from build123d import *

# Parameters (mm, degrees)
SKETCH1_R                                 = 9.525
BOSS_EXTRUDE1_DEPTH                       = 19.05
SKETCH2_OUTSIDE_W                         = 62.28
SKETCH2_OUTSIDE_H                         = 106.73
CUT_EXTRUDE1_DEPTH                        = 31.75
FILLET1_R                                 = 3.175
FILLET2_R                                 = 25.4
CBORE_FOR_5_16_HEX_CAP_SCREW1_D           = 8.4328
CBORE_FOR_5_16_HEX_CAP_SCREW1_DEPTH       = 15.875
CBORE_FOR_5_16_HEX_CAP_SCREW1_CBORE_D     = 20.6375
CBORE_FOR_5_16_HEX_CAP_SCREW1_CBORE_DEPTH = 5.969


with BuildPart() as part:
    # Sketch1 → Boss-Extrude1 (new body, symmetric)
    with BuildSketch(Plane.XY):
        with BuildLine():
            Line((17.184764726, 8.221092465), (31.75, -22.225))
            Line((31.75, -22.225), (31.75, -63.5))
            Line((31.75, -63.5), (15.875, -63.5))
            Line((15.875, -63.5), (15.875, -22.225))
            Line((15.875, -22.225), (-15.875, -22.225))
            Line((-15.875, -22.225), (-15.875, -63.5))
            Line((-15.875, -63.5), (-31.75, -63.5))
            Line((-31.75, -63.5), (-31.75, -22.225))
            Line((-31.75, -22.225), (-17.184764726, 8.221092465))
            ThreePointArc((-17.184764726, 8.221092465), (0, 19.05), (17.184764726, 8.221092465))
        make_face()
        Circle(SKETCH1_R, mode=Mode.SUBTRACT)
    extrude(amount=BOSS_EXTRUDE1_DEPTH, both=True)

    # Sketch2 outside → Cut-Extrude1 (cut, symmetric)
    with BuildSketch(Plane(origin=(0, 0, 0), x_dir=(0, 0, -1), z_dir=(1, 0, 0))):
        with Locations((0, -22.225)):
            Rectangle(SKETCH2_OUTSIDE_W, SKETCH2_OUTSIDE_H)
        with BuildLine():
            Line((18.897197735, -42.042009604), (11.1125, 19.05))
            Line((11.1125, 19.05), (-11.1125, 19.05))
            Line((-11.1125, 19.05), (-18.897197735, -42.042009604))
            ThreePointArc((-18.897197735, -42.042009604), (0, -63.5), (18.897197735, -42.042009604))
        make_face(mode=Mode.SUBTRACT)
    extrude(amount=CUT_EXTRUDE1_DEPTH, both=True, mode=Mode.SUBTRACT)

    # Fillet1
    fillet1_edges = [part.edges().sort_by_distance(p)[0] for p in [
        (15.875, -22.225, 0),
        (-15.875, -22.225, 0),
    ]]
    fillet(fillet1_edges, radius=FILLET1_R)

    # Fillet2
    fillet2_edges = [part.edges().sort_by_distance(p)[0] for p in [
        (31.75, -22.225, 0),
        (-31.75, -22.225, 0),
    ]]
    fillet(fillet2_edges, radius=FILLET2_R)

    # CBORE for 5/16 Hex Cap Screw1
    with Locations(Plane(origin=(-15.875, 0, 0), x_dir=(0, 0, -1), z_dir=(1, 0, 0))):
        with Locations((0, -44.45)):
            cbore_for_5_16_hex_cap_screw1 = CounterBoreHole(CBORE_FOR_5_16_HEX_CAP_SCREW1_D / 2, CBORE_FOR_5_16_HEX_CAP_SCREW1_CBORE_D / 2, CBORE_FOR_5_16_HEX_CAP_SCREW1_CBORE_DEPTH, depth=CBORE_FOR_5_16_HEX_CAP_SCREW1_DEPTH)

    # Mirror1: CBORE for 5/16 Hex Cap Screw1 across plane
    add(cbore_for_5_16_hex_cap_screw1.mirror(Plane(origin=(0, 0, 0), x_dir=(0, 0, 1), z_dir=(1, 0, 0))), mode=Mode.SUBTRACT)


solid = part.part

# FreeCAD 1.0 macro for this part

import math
import FreeCAD as App
import Part
import Sketcher
Q = App.Units.Quantity


def edges_at(feature, points):
    """Names of the edges that pass closest to the given points."""
    edges = feature.Shape.Edges
    near = lambda p: min(range(len(edges)), key=lambda i: edges[i].distToShape(Part.Vertex(*p))[0])
    return sorted({f"Edge{near(p) + 1}" for p in points})


def add_polygon(sketch, points):
    """Adds a closed chain of lines whose ends are joined by coincident constraints."""
    first, n = sketch.GeometryCount, len(points)
    for a, b in zip(points, points[1:] + points[:1]):
        sketch.addGeometry(Part.LineSegment(App.Vector(*a, 0), App.Vector(*b, 0)), False)
    for i in range(n):
        sketch.addConstraint(Sketcher.Constraint("Coincident", first + i, 2, first + (i + 1) % n, 1))

doc = App.newDocument("Part")
params = doc.addObject("Spreadsheet::Sheet", "Params")
for row, (alias, value) in enumerate([
    ("sketch1_diameter", "0.75 in"),
    ("sketch1_radius", "0.75 in"),
    ("sketch1_width", "1.25 in"),
    ("sketch1_height", "1.625 in"),
    ("pad1_length", "1.5 in"),
    ("sketch2_radius", "0.75 in"),
    ("sketch2_height", "0.875 in"),
    ("pocket1_length", "2.5 in"),
    ("fillet_radius", "0.125 in"),
    ("fillet2_radius", "1 in"),
    ("sketch3_diameter", "0.332 in"),
    ("hole_diameter", "0.332 in"),
    ("hole_depth", "0.625 in"),
    ("hole_cbore_diameter", "0.8125 in"),
    ("hole_cbore_depth", "0.235 in"),
], start=1):
    params.set(f"A{row}", alias)
    params.set(f"B{row}", "=" + value)
    params.setAlias(f"B{row}", alias)

body = doc.addObject("PartDesign::Body", "Body")

# Sketch on XY plane
sketch1 = body.newObject("Sketcher::SketchObject", "Sketch")
sketch1.AttachmentSupport = (doc.getObject("XY_Plane"), [""])
sketch1.MapMode = "FlatFace"
sketch1.addGeometry([
    Part.LineSegment(App.Vector(32, -22, 0), App.Vector(17, 8, 0)),  # 0
    Part.ArcOfCircle(Part.Circle(App.Vector(0, 0, 0), App.Vector(0, 0, 1), 19), math.radians(26), math.radians(154)),  # 1
    Part.LineSegment(App.Vector(-17, 8, 0), App.Vector(-32, -22, 0)),  # 2
    Part.LineSegment(App.Vector(-32, -22, 0), App.Vector(-32, -64, 0)),  # 3
    Part.LineSegment(App.Vector(-32, -64, 0), App.Vector(-16, -64, 0)),  # 4
    Part.LineSegment(App.Vector(-16, -64, 0), App.Vector(-16, -22, 0)),  # 5
    Part.LineSegment(App.Vector(-16, -22, 0), App.Vector(16, -22, 0)),  # 6
    Part.LineSegment(App.Vector(16, -22, 0), App.Vector(16, -64, 0)),  # 7
    Part.LineSegment(App.Vector(16, -64, 0), App.Vector(32, -64, 0)),  # 8
    Part.LineSegment(App.Vector(32, -64, 0), App.Vector(32, -22, 0)),  # 9
    Part.Circle(App.Vector(0, 0, 0), App.Vector(0, 0, 1), 10),  # 10
], False)
sketch1.addConstraint([
    Sketcher.Constraint("Tangent", 0, 2, 1, 1),
    Sketcher.Constraint("Tangent", 1, 2, 2, 1),
    Sketcher.Constraint("Coincident", 2, 2, 3, 1),
    Sketcher.Constraint("Coincident", 3, 2, 4, 1),
    Sketcher.Constraint("Coincident", 4, 2, 5, 1),
    Sketcher.Constraint("Coincident", 5, 2, 6, 1),
    Sketcher.Constraint("Coincident", 6, 2, 7, 1),
    Sketcher.Constraint("Coincident", 7, 2, 8, 1),
    Sketcher.Constraint("Coincident", 8, 2, 9, 1),
    Sketcher.Constraint("Coincident", 9, 2, 0, 1),
    Sketcher.Constraint("Vertical", 3),
    Sketcher.Constraint("Horizontal", 4),
    Sketcher.Constraint("Vertical", 5),
    Sketcher.Constraint("Horizontal", 6),
    Sketcher.Constraint("Vertical", 7),
    Sketcher.Constraint("Horizontal", 8),
    Sketcher.Constraint("Vertical", 9),
    Sketcher.Constraint("Coincident", 1, 3, -1, 1),
    Sketcher.Constraint("Coincident", 10, 3, -1, 1),
    Sketcher.Constraint("Symmetric", 4, 2, 7, 2, -2),
    Sketcher.Constraint("Symmetric", 2, 2, 9, 2, -2),
    Sketcher.Constraint("Horizontal", 2, 2, 5, 2),
    Sketcher.Constraint("Diameter", 10, Q("0.75 in")),
    Sketcher.Constraint("Radius", 1, Q("0.75 in")),
    Sketcher.Constraint("DistanceX", 6, 1, 6, 2, Q("1.25 in")),
    Sketcher.Constraint("DistanceY", 3, 2, -1, 1, Q("2.5 in")),
    Sketcher.Constraint("DistanceX", 3, 2, 8, 2, Q("2.5 in")),
    Sketcher.Constraint("DistanceY", 3, 2, 3, 1, Q("1.625 in")),
])
sketch1.setExpression("Constraints[22]", "Params.sketch1_diameter")
sketch1.setExpression("Constraints[23]", "Params.sketch1_radius")
sketch1.setExpression("Constraints[24]", "Params.sketch1_width")
sketch1.setExpression("Constraints[27]", "Params.sketch1_height")
pad1 = body.newObject("PartDesign::Pad", "Pad")
pad1.Profile = sketch1
pad1.setExpression("Length", "Params.pad1_length")
pad1.Midplane = True

# Sketch on YZ plane
sketch2 = body.newObject("Sketcher::SketchObject", "Sketch001")
sketch2.AttachmentSupport = (doc.getObject("YZ_Plane"), [""])
sketch2.MapMode = "FlatFace"
add_polygon(sketch2, [(31, 31), (-76, 31), (-76, -31), (31, -31)])  # lines 0-3
sketch2.addGeometry(Part.LineSegment(App.Vector(19, -11, 0), App.Vector(-42, -19, 0)), False)  # 4
sketch2.addGeometry(Part.ArcOfCircle(Part.Circle(App.Vector(-44, 0, 0), App.Vector(0, 0, 1), 19), math.radians(83), math.radians(277)), False)  # 5
sketch2.addGeometry(Part.LineSegment(App.Vector(-42, 19, 0), App.Vector(19, 11, 0)), False)  # 6
sketch2.addGeometry(Part.LineSegment(App.Vector(19, 11, 0), App.Vector(19, -11, 0)), False)  # 7
sketch2.addConstraint([
    Sketcher.Constraint("Tangent", 4, 2, 5, 2),
    Sketcher.Constraint("Tangent", 5, 1, 6, 1),
    Sketcher.Constraint("Coincident", 6, 2, 7, 1),
    Sketcher.Constraint("Coincident", 7, 2, 4, 1),
    Sketcher.Constraint("Horizontal", 0),
    Sketcher.Constraint("Vertical", 1),
    Sketcher.Constraint("Horizontal", 2),
    Sketcher.Constraint("Vertical", 3),
    Sketcher.Constraint("Vertical", 7),
    Sketcher.Constraint("Symmetric", 4, 2, 5, 1, -1),
    Sketcher.Constraint("Radius", 5, Q("0.75 in")),
    Sketcher.Constraint("DistanceX", 5, 3, 6, 2, Q("2.5 in")),
    Sketcher.Constraint("DistanceY", 7, 2, 7, 1, Q("0.875 in")),
    Sketcher.Constraint("DistanceX", 5, 3, -1, 1, Q("1.75 in")),
    Sketcher.Constraint("DistanceY", 1, 2, 4, 2, Q("0.4820001 in")),
    Sketcher.Constraint("DistanceY", 5, 1, 0, 2, Q("0.4820001 in")),
    Sketcher.Constraint("DistanceX", 0, 2, 0, 1, 106.73),
    Sketcher.Constraint("DistanceX", 0, 2, -1, 1, 75.59),
])
sketch2.setExpression("Constraints[14]", "Params.sketch2_radius")
sketch2.setExpression("Constraints[16]", "Params.sketch2_height")
pocket1 = body.newObject("PartDesign::Pocket", "Pocket")
pocket1.Profile = sketch2
pocket1.setExpression("Length", "Params.pocket1_length")
pocket1.Midplane = True
doc.recompute()

fillet = body.newObject("PartDesign::Fillet", "Fillet")
fillet.Base = (pocket1, edges_at(pocket1, [(15.875, -22.225, 0), (-15.875, -22.225, 0)]))
fillet.setExpression("Radius", "Params.fillet_radius")
doc.recompute()

fillet2 = body.newObject("PartDesign::Fillet", "Fillet001")
fillet2.Base = (fillet, edges_at(fillet, [(31.75, -22.225, 0), (-31.75, -22.225, 0)]))
fillet2.setExpression("Radius", "Params.fillet2_radius")

# Sketch on YZ plane
sketch3 = body.newObject("Sketcher::SketchObject", "Sketch002")
sketch3.AttachmentSupport = (doc.getObject("YZ_Plane"), [""])
sketch3.MapMode = "FlatFace"
sketch3.AttachmentOffset = App.Placement(App.Vector(0, 0, -0.625 * 25.4), App.Rotation())
sketch3.addGeometry(Part.Circle(App.Vector(-44.5, 0, 0), App.Vector(0, 0, 1), 4.2), False)
sketch3.addConstraint([
    Sketcher.Constraint("PointOnObject", 0, 3, -1),
    Sketcher.Constraint("Diameter", 0, Q("0.332 in")),
    Sketcher.Constraint("DistanceX", 0, 3, -1, 1, Q("1.75 in")),
])
sketch3.setExpression("Constraints[1]", "Params.sketch3_diameter")
doc.recompute()
hole = body.newObject("PartDesign::Hole", "Hole")
hole.Profile = sketch3
hole.ThreadType = "None"
hole.setExpression("Diameter", "Params.hole_diameter")
hole.DepthType = "Dimension"
hole.setExpression("Depth", "Params.hole_depth")
hole.DrillPoint = "Flat"
hole.HoleCutType = "Counterbore"
hole.setExpression("HoleCutDiameter", "Params.hole_cbore_diameter")
hole.setExpression("HoleCutDepth", "Params.hole_cbore_depth")
doc.recompute()

mirrored = body.newObject("PartDesign::Mirrored", "Mirrored")
mirrored.Originals = [hole]
mirrored.MirrorPlane = (doc.getObject("YZ_Plane"), [""])
body.Tip = mirrored

doc.recompute()
